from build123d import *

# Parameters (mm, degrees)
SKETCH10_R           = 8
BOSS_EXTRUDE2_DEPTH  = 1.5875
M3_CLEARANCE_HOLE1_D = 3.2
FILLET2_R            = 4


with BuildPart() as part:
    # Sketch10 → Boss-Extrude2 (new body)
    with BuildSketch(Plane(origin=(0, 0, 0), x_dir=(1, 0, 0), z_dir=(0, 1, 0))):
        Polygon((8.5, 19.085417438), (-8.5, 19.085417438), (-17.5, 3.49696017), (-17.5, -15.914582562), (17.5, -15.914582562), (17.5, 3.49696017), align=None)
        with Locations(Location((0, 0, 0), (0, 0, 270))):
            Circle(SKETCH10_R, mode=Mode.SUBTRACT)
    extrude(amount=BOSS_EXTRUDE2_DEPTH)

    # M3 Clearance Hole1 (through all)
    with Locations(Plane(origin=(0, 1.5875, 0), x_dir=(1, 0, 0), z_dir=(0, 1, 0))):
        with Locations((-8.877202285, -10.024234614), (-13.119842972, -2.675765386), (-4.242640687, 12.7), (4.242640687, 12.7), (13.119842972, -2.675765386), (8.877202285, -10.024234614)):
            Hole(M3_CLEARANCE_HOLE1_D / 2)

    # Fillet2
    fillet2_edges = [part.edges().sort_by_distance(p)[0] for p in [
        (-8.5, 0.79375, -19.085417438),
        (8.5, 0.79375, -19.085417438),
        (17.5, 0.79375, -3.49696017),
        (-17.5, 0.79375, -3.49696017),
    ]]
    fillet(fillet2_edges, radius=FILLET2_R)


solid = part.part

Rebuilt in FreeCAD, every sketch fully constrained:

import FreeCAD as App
import Part
import Sketcher
from FreeCAD import Vector
Q = App.Units.Quantity


def edges_at(feature, points):
    """Names of the edges that pass closest to the given points."""
    edges = feature.Shape.Edges
    near = lambda p: min(range(len(edges)), key=lambda i: edges[i].distToShape(Part.Vertex(*p))[0])
    return sorted({f"Edge{near(p) + 1}" for p in points})

doc = App.newDocument("Part")
body = doc.addObject("PartDesign::Body", "Body")

sketch1 = doc.addObject("Sketcher::SketchObject", "Sketch")
body.addObject(sketch1)
sketch1.AttachmentSupport = (doc.XZ_Plane, [""])
sketch1.MapMode = "FlatFace"
sketch1.addGeometry(Part.LineSegment(Vector(8.5, -19.085417, 0), Vector(-8.5, -19.085417, 0)), False)
sketch1.addGeometry(Part.LineSegment(Vector(-8.5, -19.085417, 0), Vector(-17.5, -3.49696, 0)), False)
sketch1.addGeometry(Part.LineSegment(Vector(-17.5, -3.49696, 0), Vector(-17.5, 15.914583, 0)), False)
sketch1.addGeometry(Part.LineSegment(Vector(-17.5, 15.914583, 0), Vector(17.5, 15.914583, 0)), False)
sketch1.addGeometry(Part.LineSegment(Vector(17.5, 15.914583, 0), Vector(17.5, -3.49696, 0)), False)
sketch1.addGeometry(Part.LineSegment(Vector(17.5, -3.49696, 0), Vector(8.5, -19.085417, 0)), False)
sketch1.addGeometry(Part.Circle(Vector(0, 0, 0), Vector(0, 0, 1), 8), False)
sketch1.addConstraint(Sketcher.Constraint("Coincident", 0, 2, 1, 1))
sketch1.addConstraint(Sketcher.Constraint("Coincident", 1, 2, 2, 1))
sketch1.addConstraint(Sketcher.Constraint("Coincident", 2, 2, 3, 1))
sketch1.addConstraint(Sketcher.Constraint("Coincident", 3, 2, 4, 1))
sketch1.addConstraint(Sketcher.Constraint("Coincident", 4, 2, 5, 1))
sketch1.addConstraint(Sketcher.Constraint("Coincident", 5, 2, 0, 1))
sketch1.addConstraint(Sketcher.Constraint("Horizontal", 0))
sketch1.addConstraint(Sketcher.Constraint("Vertical", 2))
sketch1.addConstraint(Sketcher.Constraint("Horizontal", 3))
sketch1.addConstraint(Sketcher.Constraint("Vertical", 4))
sketch1.addConstraint(Sketcher.Constraint("Coincident", 6, 3, -1, 1))
sketch1.addConstraint(Sketcher.Constraint("Symmetric", 1, 2, 4, 2, -2))
sketch1.addConstraint(Sketcher.Constraint("Equal", 1, 5))
sketch1.addConstraint(Sketcher.Constraint("Diameter", 6, Q("16 mm")))
sketch1.addConstraint(Sketcher.Constraint("DistanceX", 0, 2, 0, 1, Q("17 mm")))
sketch1.addConstraint(Sketcher.Constraint("DistanceX", 3, 1, 3, 2, Q("35 mm")))
sketch1.addConstraint(Sketcher.Constraint("Angle", 1, Q("120 deg")))
sketch1.addConstraint(Sketcher.Constraint("DistanceY", 0, 2, 2, 2, Q("35 mm")))
sketch1.addConstraint(Sketcher.Constraint("DistanceY", 1, 2, -1, 1, Q("3.49696 mm")))
pad1 = doc.addObject("PartDesign::Pad", "Pad")
body.addObject(pad1)
pad1.Profile = sketch1
pad1.Length = 1.5875
pad1.Reversed = True

sketch2 = doc.addObject("Sketcher::SketchObject", "Sketch001")
body.addObject(sketch2)
sketch2.AttachmentSupport = (doc.XZ_Plane, [""])
sketch2.MapMode = "FlatFace"
sketch2.AttachmentOffset = App.Placement(Vector(0, 0, -1.5875), App.Rotation())
sketch2.addGeometry(Part.Circle(Vector(-8.877202, 10.024235, 0), Vector(0, 0, 1), 1.6), False)
sketch2.addGeometry(Part.Circle(Vector(-13.119843, 2.675765, 0), Vector(0, 0, 1), 1.6), False)
sketch2.addGeometry(Part.Circle(Vector(-4.242641, -12.7, 0), Vector(0, 0, 1), 1.6), False)
sketch2.addGeometry(Part.Circle(Vector(4.242641, -12.7, 0), Vector(0, 0, 1), 1.6), False)
sketch2.addGeometry(Part.Circle(Vector(13.119843, 2.675765, 0), Vector(0, 0, 1), 1.6), False)
sketch2.addGeometry(Part.Circle(Vector(8.877202, 10.024235, 0), Vector(0, 0, 1), 1.6), False)
sketch2.addConstraint(Sketcher.Constraint("Equal", 0, 1))
sketch2.addConstraint(Sketcher.Constraint("Equal", 1, 2))
sketch2.addConstraint(Sketcher.Constraint("Equal", 2, 3))
sketch2.addConstraint(Sketcher.Constraint("Equal", 3, 4))
sketch2.addConstraint(Sketcher.Constraint("Equal", 4, 5))
sketch2.addConstraint(Sketcher.Constraint("Symmetric", 2, 3, 3, 3, -2))
sketch2.addConstraint(Sketcher.Constraint("Symmetric", 1, 3, 4, 3, -2))
sketch2.addConstraint(Sketcher.Constraint("Symmetric", 0, 3, 5, 3, -2))
sketch2.addConstraint(Sketcher.Constraint("Diameter", 0, Q("3.2 mm")))
sketch2.addConstraint(Sketcher.Constraint("DistanceY", 2, 3, -1, 1, Q("12.7 mm")))
sketch2.addConstraint(Sketcher.Constraint("DistanceX", 2, 3, -1, 1, Q("4.242641 mm")))
sketch2.addConstraint(Sketcher.Constraint("DistanceX", 1, 3, 0, 3, Q("4.242641 mm")))
sketch2.addConstraint(Sketcher.Constraint("DistanceY", 1, 3, 0, 3, Q("7.348469 mm")))
sketch2.addConstraint(Sketcher.Constraint("DistanceX", 0, 3, 2, 3, Q("4.634562 mm")))
sketch2.addConstraint(Sketcher.Constraint("DistanceY", -1, 1, 0, 3, Q("10.024235 mm")))
doc.recompute()
hole = doc.addObject("PartDesign::Hole", "Hole")
body.addObject(hole)
hole.Profile = sketch2
hole.ThreadType = "None"
hole.Diameter = 3.2
hole.DepthType = "ThroughAll"
hole.Reversed = True
doc.recompute()

fillet = doc.addObject("PartDesign::Fillet", "Fillet")
body.addObject(fillet)
fillet.Base = (hole, edges_at(hole, [
    (-8.5, 0.794, -19.085),
    (8.5, 0.794, -19.085),
    (17.5, 0.794, -3.497),
    (-17.5, 0.794, -3.497),
]))
fillet.Radius = 4

doc.recompute()
